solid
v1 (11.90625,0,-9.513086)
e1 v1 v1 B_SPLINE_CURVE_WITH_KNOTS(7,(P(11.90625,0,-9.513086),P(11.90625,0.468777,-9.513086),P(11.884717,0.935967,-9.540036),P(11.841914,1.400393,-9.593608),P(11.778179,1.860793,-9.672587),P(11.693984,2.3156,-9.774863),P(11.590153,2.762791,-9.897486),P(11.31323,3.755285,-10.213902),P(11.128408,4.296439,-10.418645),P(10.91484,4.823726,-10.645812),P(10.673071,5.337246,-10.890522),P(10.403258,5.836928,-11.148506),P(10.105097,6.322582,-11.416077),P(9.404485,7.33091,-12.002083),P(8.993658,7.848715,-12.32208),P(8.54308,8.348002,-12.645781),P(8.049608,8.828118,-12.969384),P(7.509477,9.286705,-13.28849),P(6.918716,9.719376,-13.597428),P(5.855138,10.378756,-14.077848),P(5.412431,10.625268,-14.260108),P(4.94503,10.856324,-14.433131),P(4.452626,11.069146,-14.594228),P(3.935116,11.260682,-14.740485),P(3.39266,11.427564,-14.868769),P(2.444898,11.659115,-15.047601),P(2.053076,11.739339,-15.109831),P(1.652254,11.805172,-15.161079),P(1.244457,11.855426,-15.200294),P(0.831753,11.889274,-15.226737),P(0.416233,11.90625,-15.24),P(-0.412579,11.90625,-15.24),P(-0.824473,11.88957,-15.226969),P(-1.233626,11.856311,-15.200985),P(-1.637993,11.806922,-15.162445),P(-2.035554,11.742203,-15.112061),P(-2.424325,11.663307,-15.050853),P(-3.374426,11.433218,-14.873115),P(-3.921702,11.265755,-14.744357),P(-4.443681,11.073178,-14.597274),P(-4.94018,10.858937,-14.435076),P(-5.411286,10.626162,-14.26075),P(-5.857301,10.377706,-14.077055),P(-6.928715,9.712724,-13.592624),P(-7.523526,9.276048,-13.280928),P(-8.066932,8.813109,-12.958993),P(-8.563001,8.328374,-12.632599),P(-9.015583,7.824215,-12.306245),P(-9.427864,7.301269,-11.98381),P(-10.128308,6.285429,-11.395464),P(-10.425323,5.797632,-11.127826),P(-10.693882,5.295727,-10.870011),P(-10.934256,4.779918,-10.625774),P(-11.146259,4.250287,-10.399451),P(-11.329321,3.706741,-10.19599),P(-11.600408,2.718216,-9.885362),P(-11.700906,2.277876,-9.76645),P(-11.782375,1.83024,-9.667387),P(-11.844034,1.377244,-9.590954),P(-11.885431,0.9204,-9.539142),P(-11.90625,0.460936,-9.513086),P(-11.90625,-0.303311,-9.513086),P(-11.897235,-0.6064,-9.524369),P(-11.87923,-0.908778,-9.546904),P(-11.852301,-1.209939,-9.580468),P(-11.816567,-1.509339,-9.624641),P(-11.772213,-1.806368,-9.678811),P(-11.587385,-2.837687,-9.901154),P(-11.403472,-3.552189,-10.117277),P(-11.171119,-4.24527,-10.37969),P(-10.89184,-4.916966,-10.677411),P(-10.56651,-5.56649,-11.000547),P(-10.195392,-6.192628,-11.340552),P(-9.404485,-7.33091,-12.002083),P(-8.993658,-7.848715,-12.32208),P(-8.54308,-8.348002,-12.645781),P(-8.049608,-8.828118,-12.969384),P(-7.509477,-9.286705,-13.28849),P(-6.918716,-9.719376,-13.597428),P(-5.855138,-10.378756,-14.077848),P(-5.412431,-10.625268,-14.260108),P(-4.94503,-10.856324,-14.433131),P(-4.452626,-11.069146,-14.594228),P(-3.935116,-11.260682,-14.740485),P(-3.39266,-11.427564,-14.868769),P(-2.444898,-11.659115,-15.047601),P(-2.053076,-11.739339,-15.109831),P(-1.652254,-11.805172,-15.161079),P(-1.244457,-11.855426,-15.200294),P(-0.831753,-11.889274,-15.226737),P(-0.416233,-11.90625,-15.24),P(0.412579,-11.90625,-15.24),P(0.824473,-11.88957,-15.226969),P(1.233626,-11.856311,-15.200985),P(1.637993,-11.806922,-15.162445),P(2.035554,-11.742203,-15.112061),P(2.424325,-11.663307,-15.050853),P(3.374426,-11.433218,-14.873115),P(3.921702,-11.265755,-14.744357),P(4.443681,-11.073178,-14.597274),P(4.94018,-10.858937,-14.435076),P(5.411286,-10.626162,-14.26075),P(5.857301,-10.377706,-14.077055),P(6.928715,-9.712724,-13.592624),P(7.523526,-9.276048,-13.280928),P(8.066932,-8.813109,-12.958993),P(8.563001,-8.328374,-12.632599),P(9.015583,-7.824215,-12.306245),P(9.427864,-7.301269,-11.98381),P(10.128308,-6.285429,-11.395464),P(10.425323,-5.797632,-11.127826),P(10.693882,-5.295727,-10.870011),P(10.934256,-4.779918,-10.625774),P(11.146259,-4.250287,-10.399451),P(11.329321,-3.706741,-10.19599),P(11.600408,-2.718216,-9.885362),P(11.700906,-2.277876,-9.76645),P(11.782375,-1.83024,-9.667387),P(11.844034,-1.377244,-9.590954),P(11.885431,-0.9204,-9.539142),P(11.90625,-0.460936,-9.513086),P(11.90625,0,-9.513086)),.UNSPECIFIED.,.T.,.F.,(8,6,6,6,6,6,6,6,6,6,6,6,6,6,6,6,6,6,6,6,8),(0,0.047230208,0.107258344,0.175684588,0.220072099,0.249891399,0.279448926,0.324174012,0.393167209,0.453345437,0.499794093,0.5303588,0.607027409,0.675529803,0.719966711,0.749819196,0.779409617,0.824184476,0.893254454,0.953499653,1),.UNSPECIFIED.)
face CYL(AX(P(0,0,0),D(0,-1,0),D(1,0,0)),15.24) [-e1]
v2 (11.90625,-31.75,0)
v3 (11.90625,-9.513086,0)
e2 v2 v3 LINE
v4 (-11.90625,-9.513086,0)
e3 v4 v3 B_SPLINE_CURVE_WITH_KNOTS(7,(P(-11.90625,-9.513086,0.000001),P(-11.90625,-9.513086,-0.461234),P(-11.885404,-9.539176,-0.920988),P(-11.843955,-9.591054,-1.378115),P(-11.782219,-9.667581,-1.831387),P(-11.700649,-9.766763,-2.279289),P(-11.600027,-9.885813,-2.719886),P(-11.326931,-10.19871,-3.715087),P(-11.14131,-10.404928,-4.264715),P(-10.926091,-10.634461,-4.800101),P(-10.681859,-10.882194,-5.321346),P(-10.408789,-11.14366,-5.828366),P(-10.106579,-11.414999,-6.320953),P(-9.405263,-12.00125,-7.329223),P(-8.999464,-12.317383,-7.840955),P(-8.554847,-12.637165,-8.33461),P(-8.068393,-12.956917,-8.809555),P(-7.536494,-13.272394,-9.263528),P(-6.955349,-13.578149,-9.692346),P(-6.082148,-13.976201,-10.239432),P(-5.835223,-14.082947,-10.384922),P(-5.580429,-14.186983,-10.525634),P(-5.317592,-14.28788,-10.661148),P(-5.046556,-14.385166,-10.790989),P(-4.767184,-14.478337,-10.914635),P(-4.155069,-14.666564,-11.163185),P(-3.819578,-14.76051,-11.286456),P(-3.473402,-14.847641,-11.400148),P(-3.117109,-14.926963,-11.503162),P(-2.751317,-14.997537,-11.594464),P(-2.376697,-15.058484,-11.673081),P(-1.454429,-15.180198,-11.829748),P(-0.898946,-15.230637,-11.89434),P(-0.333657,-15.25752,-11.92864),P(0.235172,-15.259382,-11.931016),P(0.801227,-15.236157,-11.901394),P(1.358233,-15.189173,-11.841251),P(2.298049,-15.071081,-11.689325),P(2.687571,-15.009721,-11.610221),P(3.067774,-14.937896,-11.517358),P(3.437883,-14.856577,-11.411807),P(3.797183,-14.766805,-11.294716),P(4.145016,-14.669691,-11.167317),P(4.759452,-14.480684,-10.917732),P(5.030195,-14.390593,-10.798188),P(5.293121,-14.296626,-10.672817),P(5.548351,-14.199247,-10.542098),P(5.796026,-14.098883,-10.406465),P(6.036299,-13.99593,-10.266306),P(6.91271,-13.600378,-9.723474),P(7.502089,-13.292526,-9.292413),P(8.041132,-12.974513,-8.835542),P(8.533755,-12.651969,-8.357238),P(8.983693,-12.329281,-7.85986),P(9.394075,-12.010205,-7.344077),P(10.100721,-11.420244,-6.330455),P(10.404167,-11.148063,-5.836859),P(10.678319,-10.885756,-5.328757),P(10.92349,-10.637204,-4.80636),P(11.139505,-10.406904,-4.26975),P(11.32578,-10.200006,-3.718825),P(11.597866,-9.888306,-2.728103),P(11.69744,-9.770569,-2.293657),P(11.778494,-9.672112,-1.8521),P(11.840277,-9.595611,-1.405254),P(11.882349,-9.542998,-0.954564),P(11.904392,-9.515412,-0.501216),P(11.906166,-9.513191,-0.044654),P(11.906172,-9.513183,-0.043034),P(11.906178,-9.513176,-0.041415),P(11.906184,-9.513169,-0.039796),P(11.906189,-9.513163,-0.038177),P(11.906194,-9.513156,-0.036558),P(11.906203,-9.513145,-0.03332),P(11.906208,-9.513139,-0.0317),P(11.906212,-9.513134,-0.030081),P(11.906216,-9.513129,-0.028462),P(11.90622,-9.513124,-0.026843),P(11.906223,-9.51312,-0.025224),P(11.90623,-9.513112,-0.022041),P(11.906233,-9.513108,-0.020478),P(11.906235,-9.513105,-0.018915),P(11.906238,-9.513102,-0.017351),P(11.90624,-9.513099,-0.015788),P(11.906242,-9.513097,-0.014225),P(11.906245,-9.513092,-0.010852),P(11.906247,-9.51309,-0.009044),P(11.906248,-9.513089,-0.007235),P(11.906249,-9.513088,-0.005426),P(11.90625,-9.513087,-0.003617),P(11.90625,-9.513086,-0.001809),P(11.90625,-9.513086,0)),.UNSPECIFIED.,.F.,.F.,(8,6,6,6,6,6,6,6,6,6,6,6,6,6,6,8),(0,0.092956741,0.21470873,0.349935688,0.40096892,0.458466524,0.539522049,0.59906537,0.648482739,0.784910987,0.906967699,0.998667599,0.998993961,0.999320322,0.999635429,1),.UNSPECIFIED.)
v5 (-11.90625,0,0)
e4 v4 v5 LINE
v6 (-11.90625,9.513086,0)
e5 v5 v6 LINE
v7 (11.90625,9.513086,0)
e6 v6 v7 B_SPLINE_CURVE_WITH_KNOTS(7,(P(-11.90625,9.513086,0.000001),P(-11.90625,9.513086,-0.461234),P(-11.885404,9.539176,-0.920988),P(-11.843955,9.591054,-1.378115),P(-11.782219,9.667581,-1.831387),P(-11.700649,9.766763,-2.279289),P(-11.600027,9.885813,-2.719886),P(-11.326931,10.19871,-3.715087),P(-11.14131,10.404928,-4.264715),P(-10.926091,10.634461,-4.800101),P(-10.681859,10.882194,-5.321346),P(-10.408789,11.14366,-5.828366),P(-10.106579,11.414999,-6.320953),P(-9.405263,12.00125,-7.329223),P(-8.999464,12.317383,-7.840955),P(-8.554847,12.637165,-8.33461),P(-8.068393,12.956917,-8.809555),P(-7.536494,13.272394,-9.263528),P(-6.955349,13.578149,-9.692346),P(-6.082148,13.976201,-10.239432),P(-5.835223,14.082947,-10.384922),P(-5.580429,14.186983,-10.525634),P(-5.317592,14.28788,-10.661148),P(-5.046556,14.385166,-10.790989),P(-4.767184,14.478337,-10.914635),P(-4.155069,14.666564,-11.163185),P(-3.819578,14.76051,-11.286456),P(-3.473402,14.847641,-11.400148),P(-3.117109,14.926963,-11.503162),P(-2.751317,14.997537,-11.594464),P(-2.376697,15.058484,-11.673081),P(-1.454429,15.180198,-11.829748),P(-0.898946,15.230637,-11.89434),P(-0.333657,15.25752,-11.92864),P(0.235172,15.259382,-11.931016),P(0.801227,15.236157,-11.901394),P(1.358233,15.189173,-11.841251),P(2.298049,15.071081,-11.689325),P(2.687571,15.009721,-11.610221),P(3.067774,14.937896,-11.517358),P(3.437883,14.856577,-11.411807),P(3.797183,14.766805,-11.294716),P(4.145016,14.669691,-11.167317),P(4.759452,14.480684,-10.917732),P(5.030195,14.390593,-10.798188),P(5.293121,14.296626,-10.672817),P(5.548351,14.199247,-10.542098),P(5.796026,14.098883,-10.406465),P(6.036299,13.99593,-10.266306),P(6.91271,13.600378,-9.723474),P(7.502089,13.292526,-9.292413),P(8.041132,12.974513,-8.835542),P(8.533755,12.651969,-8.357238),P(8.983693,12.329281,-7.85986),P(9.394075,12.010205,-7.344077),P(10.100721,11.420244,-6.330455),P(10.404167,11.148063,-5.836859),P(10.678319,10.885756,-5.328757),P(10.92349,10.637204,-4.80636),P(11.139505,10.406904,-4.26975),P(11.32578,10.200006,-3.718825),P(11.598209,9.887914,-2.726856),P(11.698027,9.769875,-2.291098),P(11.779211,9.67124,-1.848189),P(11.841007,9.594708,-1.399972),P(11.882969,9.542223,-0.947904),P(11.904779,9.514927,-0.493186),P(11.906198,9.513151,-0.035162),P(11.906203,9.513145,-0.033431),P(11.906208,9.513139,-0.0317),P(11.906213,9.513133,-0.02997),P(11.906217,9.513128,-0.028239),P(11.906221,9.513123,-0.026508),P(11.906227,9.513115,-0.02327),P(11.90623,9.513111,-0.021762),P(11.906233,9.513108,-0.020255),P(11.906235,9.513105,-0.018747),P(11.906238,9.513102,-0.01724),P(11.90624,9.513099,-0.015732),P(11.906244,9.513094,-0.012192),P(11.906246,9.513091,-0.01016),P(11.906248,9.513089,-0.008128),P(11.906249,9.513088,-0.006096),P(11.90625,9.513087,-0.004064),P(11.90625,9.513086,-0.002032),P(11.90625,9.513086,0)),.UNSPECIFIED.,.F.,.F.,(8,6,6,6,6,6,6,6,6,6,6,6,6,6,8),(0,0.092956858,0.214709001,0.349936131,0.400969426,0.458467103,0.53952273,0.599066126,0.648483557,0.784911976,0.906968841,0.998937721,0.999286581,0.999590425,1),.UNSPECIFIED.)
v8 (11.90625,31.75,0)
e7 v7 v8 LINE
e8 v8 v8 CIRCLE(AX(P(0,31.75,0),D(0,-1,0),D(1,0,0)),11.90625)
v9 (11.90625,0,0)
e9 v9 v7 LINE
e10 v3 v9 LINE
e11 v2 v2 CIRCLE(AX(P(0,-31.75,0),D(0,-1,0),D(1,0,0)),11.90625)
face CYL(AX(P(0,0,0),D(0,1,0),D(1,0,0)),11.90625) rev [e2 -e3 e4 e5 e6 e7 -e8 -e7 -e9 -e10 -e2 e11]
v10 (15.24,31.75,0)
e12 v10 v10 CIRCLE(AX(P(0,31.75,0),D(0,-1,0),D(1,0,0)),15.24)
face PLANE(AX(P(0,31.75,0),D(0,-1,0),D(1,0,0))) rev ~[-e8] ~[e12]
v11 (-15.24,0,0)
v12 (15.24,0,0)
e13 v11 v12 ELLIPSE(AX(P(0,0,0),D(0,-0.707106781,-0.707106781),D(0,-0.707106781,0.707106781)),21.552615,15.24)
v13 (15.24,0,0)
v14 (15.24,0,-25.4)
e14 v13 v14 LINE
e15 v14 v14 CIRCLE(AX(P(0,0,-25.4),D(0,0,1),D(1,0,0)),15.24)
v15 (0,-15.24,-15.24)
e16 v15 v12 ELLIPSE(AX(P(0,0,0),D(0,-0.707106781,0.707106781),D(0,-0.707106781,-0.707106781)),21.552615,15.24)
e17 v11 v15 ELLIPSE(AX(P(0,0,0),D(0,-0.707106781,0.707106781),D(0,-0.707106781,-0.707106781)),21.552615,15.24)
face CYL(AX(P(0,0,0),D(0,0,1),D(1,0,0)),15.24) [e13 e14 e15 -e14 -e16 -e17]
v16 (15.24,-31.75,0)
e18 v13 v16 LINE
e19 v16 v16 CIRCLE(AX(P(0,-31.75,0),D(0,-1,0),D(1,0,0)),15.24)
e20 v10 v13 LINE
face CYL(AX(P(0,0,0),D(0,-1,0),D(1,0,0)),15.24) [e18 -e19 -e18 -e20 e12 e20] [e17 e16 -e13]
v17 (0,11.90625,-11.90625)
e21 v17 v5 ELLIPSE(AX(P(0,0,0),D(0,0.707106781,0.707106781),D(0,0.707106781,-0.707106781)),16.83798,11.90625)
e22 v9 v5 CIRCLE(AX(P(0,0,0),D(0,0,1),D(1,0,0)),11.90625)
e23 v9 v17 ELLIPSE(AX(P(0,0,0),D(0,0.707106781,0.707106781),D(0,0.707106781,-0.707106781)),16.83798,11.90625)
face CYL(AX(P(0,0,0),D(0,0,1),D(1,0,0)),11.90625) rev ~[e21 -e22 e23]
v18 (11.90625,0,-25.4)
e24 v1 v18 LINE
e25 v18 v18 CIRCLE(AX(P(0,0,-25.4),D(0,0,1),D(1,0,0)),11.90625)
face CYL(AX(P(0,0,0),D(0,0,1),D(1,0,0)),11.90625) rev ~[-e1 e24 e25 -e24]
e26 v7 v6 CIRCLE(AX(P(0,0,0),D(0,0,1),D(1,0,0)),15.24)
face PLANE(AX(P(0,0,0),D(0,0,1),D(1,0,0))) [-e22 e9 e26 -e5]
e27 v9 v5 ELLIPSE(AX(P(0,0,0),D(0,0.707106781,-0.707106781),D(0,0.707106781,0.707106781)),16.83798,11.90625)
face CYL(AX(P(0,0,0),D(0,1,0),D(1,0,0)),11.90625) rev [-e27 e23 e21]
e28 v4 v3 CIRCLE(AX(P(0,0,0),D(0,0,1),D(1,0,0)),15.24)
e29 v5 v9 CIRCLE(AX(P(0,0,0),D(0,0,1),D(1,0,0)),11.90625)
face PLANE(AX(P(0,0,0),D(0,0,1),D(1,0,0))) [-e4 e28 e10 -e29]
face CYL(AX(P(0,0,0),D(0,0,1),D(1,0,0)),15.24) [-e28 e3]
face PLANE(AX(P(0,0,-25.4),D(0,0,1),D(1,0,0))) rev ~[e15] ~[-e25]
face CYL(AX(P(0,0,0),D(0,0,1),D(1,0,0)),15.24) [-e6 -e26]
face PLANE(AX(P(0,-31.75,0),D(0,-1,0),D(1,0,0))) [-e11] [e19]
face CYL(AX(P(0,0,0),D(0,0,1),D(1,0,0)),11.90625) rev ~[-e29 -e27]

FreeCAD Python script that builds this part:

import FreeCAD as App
import Part
import Sketcher

V = App.Vector
Q = App.Units.Quantity

doc = App.newDocument("Part")
body = doc.addObject("PartDesign::Body", "Body")

sketch1 = body.newObject("Sketcher::SketchObject", "Sketch")
sketch1.AttachmentSupport = (doc.getObject("XZ_Plane"), [""])
sketch1.MapMode = "FlatFace"
sketch1.addGeometry(Part.Circle(V(0, 0, 0), V(0, 0, 1), 15.24), False)
sketch1.addGeometry(Part.Circle(V(0, 0, 0), V(0, 0, 1), 11.90625), False)
sketch1.addConstraint(Sketcher.Constraint("Coincident", 0, 3, -1, 1))
sketch1.addConstraint(Sketcher.Constraint("Coincident", 1, 3, -1, 1))
sketch1.addConstraint(Sketcher.Constraint("Diameter", 0, Q("1.2 in")))
sketch1.addConstraint(Sketcher.Constraint("Diameter", 1, Q("0.9375 in")))
pad1 = body.newObject("PartDesign::Pad", "Pad")
pad1.Profile = sketch1
pad1.Length = Q("2.5 in")
pad1.Midplane = True

sketch2 = body.newObject("Sketcher::SketchObject", "Sketch001")
sketch2.AttachmentSupport = (doc.getObject("XY_Plane"), [""])
sketch2.MapMode = "FlatFace"
sketch2.addGeometry(Part.Circle(V(0, 0, 0), V(0, 0, 1), 15.24), False)
sketch2.addGeometry(Part.Circle(V(0, 0, 0), V(0, 0, 1), 11.90625), False)
sketch2.addConstraint(Sketcher.Constraint("Coincident", 0, 3, -1, 1))
sketch2.addConstraint(Sketcher.Constraint("Coincident", 1, 3, -1, 1))
sketch2.addConstraint(Sketcher.Constraint("Diameter", 0, Q("1.2 in")))
sketch2.addConstraint(Sketcher.Constraint("Diameter", 1, Q("0.9375 in")))
pad2 = body.newObject("PartDesign::Pad", "Pad001")
pad2.Profile = sketch2
pad2.Length = Q("1 in")
pad2.Reversed = True

doc.recompute()
